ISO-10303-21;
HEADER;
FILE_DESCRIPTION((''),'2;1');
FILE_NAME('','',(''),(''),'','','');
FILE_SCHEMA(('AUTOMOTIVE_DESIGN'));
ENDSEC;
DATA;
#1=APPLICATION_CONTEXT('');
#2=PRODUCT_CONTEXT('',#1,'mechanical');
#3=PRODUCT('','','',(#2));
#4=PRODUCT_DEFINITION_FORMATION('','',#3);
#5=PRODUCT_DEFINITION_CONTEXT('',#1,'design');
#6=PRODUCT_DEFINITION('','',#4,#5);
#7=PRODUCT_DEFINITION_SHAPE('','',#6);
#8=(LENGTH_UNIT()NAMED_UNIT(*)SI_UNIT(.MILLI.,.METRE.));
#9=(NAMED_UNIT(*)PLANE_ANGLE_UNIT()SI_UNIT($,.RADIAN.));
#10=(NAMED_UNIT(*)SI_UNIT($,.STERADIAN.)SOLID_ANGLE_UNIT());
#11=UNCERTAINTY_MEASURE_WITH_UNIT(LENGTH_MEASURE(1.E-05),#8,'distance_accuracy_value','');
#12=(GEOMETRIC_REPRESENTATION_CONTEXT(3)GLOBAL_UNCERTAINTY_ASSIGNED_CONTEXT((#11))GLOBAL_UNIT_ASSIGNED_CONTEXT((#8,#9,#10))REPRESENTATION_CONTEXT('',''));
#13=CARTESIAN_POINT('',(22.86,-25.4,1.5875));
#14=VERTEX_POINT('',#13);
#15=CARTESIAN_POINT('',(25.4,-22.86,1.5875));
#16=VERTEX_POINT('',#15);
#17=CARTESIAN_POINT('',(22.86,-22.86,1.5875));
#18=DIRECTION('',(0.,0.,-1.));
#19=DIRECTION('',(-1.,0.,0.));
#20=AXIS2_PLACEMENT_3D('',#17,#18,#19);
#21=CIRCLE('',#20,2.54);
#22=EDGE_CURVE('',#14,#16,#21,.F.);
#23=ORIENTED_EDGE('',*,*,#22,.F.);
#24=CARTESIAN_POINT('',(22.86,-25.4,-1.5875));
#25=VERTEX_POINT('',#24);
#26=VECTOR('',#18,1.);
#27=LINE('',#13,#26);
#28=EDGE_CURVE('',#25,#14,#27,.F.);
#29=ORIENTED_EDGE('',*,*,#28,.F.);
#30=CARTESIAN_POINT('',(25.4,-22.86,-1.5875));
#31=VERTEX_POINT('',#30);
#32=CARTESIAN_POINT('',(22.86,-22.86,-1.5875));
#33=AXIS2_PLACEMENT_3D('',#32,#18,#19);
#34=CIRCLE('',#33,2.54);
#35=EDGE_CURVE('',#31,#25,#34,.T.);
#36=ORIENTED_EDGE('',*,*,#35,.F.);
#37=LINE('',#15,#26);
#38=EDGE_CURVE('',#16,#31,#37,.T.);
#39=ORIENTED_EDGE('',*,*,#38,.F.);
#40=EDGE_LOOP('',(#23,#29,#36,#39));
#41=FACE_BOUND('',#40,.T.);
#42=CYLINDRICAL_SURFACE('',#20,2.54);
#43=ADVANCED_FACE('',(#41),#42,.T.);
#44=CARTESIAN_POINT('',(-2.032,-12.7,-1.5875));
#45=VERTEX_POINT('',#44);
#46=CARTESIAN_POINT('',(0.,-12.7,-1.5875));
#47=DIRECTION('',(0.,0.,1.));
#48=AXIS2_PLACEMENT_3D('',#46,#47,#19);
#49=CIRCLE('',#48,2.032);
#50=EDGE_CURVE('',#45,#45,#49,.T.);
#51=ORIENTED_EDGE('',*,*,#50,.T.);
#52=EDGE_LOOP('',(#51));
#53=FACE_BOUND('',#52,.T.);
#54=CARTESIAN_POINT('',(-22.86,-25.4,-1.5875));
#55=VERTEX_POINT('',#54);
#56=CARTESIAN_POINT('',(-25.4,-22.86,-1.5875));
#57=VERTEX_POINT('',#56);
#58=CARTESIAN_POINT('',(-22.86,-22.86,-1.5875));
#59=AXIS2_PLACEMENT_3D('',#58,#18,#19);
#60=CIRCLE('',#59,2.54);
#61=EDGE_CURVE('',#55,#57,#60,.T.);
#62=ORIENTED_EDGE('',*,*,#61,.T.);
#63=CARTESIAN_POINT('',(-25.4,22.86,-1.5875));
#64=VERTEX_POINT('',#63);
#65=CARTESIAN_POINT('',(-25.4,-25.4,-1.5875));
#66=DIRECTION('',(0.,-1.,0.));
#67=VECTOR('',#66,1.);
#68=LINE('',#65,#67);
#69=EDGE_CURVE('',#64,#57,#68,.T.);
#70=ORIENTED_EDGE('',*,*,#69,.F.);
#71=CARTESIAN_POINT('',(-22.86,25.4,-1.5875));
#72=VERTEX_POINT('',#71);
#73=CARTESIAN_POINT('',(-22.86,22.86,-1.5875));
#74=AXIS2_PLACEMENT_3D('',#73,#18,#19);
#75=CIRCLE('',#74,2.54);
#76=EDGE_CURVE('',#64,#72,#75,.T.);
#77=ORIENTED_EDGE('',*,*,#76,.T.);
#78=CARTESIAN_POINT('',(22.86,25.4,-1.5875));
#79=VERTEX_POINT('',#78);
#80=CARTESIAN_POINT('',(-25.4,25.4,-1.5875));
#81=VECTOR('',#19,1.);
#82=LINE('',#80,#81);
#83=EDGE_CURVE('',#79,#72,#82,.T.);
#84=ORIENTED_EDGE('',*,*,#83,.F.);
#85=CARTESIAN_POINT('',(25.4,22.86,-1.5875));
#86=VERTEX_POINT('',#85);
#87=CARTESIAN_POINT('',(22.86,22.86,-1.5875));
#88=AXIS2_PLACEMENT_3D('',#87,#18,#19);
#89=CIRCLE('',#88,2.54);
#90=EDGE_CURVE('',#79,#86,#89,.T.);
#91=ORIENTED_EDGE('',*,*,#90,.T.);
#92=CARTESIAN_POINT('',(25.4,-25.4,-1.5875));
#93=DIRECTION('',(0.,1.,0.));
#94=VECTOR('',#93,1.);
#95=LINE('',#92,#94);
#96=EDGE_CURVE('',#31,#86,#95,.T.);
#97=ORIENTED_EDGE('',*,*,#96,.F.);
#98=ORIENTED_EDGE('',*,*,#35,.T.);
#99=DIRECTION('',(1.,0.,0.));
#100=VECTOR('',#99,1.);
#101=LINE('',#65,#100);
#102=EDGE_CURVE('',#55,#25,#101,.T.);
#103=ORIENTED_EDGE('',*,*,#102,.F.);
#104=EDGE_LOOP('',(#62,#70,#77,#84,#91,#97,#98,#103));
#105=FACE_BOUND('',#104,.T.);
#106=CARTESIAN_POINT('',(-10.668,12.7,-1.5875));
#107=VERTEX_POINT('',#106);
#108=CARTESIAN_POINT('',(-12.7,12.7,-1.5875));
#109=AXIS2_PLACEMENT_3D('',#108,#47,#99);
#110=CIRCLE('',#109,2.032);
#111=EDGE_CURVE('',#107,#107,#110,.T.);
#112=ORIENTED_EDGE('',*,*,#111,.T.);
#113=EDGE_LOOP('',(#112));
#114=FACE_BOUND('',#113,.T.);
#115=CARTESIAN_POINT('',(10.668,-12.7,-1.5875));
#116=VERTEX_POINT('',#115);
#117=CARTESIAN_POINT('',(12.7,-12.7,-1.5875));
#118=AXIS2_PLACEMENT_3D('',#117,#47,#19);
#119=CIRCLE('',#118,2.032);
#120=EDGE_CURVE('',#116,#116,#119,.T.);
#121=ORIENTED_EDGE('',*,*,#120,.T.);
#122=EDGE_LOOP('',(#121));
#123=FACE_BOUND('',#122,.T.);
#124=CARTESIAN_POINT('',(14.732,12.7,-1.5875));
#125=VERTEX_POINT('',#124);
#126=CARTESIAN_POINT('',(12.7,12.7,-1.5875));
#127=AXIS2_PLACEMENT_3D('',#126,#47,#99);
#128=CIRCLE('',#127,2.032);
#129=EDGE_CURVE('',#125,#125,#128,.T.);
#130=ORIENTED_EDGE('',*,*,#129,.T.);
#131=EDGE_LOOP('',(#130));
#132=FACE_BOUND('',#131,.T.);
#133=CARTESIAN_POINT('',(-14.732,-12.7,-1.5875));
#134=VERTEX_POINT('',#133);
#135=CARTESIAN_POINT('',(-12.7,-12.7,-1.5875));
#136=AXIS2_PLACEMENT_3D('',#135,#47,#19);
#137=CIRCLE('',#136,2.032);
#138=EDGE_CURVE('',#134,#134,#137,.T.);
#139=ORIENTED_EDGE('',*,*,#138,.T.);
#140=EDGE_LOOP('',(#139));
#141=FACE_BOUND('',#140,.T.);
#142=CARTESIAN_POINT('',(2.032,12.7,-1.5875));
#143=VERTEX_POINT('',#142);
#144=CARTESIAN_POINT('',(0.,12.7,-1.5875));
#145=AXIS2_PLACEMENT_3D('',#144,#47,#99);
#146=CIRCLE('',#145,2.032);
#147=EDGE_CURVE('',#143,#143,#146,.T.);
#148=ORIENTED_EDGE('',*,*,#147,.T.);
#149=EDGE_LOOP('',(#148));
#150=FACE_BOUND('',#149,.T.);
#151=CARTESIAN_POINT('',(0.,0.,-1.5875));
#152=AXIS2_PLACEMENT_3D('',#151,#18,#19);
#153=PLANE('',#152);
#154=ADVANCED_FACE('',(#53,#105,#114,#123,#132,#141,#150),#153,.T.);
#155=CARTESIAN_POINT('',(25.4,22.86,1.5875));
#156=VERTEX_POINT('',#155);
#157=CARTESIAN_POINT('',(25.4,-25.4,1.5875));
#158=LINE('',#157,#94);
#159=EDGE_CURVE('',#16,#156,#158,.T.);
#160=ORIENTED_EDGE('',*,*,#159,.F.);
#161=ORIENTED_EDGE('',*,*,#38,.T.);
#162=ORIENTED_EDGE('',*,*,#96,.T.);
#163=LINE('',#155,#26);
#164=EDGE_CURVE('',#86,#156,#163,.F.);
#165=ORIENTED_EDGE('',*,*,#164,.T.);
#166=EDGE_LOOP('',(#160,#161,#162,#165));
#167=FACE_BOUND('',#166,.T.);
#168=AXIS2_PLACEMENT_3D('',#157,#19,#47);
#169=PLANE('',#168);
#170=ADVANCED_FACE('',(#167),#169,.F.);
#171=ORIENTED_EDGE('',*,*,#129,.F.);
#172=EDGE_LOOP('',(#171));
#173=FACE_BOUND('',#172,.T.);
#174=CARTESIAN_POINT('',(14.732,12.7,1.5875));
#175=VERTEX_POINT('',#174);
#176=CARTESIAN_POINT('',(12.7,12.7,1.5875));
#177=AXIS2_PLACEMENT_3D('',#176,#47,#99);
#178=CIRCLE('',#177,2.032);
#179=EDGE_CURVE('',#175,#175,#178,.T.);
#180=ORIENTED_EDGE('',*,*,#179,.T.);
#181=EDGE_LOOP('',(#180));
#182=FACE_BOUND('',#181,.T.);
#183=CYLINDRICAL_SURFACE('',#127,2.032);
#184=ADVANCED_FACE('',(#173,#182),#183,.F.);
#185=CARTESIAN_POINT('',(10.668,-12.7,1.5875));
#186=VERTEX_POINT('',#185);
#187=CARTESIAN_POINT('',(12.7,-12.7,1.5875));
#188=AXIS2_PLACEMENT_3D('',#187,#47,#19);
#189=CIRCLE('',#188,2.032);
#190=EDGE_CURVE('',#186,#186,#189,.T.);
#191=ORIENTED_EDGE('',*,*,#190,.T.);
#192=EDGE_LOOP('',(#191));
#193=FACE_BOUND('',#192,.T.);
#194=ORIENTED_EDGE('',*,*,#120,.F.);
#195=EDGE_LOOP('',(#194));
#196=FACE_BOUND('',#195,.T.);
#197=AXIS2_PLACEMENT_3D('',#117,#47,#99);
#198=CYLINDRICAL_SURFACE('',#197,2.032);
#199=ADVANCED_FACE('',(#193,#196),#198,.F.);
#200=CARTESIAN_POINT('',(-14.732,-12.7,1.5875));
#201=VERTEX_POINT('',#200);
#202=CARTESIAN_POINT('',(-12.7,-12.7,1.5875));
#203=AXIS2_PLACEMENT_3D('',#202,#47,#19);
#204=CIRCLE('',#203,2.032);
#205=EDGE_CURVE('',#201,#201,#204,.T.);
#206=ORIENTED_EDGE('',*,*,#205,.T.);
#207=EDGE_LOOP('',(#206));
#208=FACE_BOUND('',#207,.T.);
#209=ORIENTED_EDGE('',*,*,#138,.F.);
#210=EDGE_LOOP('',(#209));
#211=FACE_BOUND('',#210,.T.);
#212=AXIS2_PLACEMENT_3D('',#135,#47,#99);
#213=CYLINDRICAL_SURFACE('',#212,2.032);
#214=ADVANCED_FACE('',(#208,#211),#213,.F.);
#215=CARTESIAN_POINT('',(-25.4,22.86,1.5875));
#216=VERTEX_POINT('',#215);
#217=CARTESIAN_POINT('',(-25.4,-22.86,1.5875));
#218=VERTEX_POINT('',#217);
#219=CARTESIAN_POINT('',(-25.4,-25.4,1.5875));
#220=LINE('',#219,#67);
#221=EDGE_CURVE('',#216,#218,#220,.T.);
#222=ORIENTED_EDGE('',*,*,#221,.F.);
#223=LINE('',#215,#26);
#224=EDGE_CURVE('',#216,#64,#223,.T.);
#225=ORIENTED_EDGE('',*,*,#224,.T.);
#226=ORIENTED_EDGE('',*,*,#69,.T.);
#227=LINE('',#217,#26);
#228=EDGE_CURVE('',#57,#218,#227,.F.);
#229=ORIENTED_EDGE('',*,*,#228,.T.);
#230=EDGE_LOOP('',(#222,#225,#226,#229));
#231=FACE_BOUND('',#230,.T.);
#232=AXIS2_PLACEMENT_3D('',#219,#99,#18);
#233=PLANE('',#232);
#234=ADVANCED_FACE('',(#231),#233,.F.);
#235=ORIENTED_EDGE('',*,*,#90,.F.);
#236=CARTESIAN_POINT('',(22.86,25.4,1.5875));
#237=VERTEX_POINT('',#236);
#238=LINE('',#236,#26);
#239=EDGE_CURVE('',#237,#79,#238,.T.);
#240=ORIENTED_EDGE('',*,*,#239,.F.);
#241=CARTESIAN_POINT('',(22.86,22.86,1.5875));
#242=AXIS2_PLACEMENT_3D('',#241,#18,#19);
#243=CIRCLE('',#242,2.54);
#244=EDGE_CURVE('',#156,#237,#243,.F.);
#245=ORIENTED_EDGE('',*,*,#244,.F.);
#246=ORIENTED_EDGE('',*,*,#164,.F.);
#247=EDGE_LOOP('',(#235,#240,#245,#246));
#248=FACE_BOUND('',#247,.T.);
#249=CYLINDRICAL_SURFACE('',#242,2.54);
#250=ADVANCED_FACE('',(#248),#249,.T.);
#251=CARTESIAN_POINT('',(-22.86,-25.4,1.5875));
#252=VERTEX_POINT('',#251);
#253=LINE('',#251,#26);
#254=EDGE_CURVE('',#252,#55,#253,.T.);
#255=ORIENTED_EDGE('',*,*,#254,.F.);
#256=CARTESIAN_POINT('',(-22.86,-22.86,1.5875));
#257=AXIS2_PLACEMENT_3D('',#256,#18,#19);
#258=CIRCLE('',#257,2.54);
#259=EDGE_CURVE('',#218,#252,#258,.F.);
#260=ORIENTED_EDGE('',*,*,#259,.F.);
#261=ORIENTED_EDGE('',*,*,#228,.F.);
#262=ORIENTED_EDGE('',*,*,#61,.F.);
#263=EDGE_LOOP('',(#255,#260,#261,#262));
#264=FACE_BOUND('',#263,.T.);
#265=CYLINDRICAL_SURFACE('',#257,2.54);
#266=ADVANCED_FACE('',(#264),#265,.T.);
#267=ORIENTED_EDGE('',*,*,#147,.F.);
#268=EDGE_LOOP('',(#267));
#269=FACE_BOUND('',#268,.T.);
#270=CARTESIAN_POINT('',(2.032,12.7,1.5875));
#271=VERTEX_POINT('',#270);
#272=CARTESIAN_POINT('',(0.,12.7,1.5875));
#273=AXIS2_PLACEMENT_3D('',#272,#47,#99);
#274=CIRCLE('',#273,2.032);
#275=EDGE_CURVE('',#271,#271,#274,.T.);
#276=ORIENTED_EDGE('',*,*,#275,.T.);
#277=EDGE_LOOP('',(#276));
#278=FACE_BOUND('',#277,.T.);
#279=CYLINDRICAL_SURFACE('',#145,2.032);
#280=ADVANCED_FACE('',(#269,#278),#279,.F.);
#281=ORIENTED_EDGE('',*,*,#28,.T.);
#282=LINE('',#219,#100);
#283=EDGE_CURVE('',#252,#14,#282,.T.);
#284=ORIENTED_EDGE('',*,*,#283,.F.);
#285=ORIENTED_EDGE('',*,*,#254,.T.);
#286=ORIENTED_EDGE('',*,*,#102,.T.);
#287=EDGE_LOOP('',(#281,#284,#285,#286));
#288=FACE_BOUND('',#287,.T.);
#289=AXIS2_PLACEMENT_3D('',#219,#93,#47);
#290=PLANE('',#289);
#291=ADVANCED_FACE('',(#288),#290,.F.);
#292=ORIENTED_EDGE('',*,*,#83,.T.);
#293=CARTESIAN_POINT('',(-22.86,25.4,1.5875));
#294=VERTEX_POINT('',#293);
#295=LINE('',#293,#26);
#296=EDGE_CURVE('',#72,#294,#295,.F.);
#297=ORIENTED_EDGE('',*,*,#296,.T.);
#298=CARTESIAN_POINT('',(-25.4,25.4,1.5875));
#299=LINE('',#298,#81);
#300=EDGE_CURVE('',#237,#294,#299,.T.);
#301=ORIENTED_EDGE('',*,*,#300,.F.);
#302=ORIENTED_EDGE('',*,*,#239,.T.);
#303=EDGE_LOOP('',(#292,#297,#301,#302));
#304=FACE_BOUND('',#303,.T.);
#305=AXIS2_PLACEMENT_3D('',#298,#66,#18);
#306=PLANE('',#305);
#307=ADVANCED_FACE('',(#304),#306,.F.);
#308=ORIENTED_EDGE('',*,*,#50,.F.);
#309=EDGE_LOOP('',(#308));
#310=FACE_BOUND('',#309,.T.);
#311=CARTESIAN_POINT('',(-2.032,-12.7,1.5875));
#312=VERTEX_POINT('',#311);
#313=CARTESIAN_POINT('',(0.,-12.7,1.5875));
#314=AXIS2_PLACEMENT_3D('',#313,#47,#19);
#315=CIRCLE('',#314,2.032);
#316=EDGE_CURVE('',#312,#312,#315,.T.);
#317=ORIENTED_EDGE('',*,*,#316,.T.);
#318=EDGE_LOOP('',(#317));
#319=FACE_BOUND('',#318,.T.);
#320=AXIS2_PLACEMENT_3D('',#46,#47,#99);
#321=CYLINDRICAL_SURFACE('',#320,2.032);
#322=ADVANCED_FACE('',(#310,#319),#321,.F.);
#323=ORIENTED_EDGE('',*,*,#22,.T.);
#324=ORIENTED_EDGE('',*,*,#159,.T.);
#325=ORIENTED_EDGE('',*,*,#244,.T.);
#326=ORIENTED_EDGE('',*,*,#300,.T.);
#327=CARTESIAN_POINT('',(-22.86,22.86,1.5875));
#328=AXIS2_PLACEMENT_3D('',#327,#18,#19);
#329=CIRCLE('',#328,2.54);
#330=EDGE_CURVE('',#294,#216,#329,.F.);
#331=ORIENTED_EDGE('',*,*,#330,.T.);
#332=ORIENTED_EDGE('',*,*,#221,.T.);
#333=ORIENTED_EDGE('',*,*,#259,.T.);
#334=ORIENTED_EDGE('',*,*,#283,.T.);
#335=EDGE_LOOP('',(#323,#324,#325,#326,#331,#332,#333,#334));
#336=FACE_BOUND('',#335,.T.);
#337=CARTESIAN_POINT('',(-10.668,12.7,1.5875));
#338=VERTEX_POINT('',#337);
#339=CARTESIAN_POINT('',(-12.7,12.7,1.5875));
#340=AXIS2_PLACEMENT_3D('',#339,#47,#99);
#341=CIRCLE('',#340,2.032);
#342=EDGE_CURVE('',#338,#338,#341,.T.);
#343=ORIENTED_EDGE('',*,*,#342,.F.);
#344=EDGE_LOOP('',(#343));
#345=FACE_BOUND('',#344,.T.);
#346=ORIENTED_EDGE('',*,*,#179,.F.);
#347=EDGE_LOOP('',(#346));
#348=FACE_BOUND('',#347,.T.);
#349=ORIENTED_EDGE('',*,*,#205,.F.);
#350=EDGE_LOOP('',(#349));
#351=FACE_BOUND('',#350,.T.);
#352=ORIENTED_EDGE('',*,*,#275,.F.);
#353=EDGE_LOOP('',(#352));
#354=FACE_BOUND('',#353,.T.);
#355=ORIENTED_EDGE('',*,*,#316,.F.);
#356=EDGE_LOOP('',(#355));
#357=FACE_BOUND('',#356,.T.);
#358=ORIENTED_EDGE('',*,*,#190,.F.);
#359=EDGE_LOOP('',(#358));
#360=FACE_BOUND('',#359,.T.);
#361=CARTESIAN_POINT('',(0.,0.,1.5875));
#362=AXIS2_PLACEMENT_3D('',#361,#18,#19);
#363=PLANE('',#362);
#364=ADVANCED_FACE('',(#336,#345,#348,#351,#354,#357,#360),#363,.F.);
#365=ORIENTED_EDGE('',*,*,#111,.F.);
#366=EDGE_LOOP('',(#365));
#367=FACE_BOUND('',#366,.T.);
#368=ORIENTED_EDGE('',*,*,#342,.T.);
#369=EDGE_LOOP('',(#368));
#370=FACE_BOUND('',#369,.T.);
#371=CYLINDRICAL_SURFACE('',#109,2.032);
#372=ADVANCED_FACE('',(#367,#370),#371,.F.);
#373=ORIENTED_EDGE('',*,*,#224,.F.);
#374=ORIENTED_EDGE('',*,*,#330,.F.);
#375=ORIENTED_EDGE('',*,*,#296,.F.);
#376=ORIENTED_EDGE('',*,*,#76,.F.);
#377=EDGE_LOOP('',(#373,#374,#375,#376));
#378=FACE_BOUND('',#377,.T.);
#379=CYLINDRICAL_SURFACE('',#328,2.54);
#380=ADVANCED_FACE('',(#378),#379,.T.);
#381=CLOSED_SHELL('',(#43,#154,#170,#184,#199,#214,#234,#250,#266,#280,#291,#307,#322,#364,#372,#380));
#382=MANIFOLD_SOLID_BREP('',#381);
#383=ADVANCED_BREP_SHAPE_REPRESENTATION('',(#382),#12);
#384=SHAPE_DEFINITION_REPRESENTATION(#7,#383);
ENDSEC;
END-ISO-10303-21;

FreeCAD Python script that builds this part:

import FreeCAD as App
import Part
import Sketcher
Q = App.Units.Quantity


def edges_at(feature, points):
    """Names of the edges that pass closest to the given points."""
    edges = feature.Shape.Edges
    near = lambda p: min(range(len(edges)), key=lambda i: edges[i].distToShape(Part.Vertex(*p))[0])
    return sorted({f"Edge{near(p) + 1}" for p in points})

doc = App.newDocument("Part")
body = doc.addObject("PartDesign::Body", "Body")

sketch1 = doc.addObject("Sketcher::SketchObject", "Sketch")
body.addObject(sketch1)
sketch1.AttachmentSupport = (doc.XY_Plane, [""])
sketch1.MapMode = "FlatFace"
sketch1.addGeometry([
    Part.LineSegment(App.Vector(-25, 25, 0), App.Vector(-25, -25, 0)),
    Part.LineSegment(App.Vector(-25, -25, 0), App.Vector(25, -25, 0)),
    Part.LineSegment(App.Vector(25, -25, 0), App.Vector(25, 25, 0)),
    Part.LineSegment(App.Vector(25, 25, 0), App.Vector(-25, 25, 0)),
], False)
sketch1.addConstraint([
    Sketcher.Constraint("Coincident", 0, 2, 1, 1),
    Sketcher.Constraint("Coincident", 1, 2, 2, 1),
    Sketcher.Constraint("Coincident", 2, 2, 3, 1),
    Sketcher.Constraint("Coincident", 3, 2, 0, 1),
    Sketcher.Constraint("Vertical", 0),
    Sketcher.Constraint("Horizontal", 1),
    Sketcher.Constraint("Vertical", 2),
    Sketcher.Constraint("Horizontal", 3),
    Sketcher.Constraint("Symmetric", 0, 2, 2, 2, -1, 1),
    Sketcher.Constraint("Equal", 3, 0),
    Sketcher.Constraint("DistanceX", 1, 1, 1, 2, Q("2 in")),
])
pad1 = doc.addObject("PartDesign::Pad", "Pad")
body.addObject(pad1)
pad1.Profile = sketch1
pad1.Length = Q("0.125 in")
pad1.Midplane = True
doc.recompute()

fillet = doc.addObject("PartDesign::Fillet", "Fillet")
body.addObject(fillet)
fillet.Base = (pad1, edges_at(pad1, [
    (25.4, -25.4, 0),
    (-25.4, -25.4, 0),
    (-25.4, 25.4, 0),
    (25.4, 25.4, 0),
]))
fillet.Radius = Q("0.1 in")

sketch2 = doc.addObject("Sketcher::SketchObject", "Sketch001")
body.addObject(sketch2)
sketch2.AttachmentSupport = (doc.XY_Plane, [""])
sketch2.MapMode = "FlatFace"
sketch2.AttachmentOffset = App.Placement(App.Vector(0, 0, 0.0625 * 25.4), App.Rotation())
sketch2.addGeometry([
    Part.Circle(App.Vector(-12.7, 12.7, 0), App.Vector(0, 0, 1), 2),
    Part.Circle(App.Vector(0, 12.7, 0), App.Vector(0, 0, 1), 2),
    Part.Circle(App.Vector(12.7, 12.7, 0), App.Vector(0, 0, 1), 2),
    Part.Circle(App.Vector(12.7, -12.7, 0), App.Vector(0, 0, 1), 2),
    Part.Circle(App.Vector(0, -12.7, 0), App.Vector(0, 0, 1), 2),
    Part.Circle(App.Vector(-12.7, -12.7, 0), App.Vector(0, 0, 1), 2),
], False)
sketch2.addConstraint([
    Sketcher.Constraint("Equal", 0, 1),
    Sketcher.Constraint("Equal", 1, 2),
    Sketcher.Constraint("Equal", 2, 3),
    Sketcher.Constraint("Equal", 3, 4),
    Sketcher.Constraint("Equal", 4, 5),
    Sketcher.Constraint("Symmetric", 0, 3, 3, 3, -1, 1),
    Sketcher.Constraint("Symmetric", 1, 3, 4, 3, -1, 1),
    Sketcher.Constraint("Symmetric", 2, 3, 5, 3, -1, 1),
    Sketcher.Constraint("Symmetric", 0, 3, 2, 3, -2),
    Sketcher.Constraint("PointOnObject", 1, 3, -2),
    Sketcher.Constraint("Horizontal", 0, 3, 1, 3),
    Sketcher.Constraint("Diameter", 0, Q("0.16 in")),
    Sketcher.Constraint("DistanceX", 0, 3, 2, 3, Q("1 in")),
    Sketcher.Constraint("DistanceY", 3, 3, 2, 3, Q("1 in")),
])
pocket1 = doc.addObject("PartDesign::Pocket", "Pocket")
body.addObject(pocket1)
pocket1.Profile = sketch2
pocket1.Type = "ThroughAll"

doc.recompute()
